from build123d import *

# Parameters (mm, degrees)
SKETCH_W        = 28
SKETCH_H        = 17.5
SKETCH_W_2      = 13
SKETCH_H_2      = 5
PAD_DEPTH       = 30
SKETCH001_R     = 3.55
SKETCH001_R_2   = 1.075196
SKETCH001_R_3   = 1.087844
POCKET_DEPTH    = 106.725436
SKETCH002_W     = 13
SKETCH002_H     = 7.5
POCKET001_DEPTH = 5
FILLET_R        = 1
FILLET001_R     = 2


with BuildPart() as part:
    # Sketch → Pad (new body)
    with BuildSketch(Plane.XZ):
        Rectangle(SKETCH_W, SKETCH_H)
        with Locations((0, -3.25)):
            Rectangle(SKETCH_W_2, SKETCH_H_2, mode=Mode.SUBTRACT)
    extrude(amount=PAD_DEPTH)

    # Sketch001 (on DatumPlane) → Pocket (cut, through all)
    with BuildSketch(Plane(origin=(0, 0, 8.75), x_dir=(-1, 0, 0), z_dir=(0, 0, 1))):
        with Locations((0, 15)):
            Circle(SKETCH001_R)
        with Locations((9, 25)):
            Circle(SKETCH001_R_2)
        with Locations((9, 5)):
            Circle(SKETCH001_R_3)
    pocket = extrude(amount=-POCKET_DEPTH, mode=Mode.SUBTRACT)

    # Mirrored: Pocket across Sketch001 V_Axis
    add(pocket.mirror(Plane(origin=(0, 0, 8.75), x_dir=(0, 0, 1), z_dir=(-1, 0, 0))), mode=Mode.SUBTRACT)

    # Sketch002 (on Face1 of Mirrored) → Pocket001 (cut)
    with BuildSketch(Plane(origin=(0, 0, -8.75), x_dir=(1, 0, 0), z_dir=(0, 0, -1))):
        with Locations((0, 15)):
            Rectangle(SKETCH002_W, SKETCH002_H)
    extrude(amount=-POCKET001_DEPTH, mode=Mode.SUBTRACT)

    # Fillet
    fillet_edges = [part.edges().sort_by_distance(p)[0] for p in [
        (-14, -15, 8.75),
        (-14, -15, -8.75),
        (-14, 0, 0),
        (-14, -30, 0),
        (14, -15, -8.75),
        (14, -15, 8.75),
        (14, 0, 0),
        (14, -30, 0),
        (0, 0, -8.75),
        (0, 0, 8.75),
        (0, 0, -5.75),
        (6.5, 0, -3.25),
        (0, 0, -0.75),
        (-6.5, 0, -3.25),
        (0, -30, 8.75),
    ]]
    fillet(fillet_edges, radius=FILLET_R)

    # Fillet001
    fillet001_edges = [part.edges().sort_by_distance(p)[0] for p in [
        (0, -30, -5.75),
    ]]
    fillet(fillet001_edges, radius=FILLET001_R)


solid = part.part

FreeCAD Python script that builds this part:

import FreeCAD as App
import Part
import Sketcher


def edges_at(feature, points):
    """Names of the edges that pass closest to the given points."""
    edges = feature.Shape.Edges
    near = lambda p: min(range(len(edges)), key=lambda i: edges[i].distToShape(Part.Vertex(*p))[0])
    return sorted({f"Edge{near(p) + 1}" for p in points})

doc = App.newDocument("Part")
body = doc.addObject("PartDesign::Body", "Body")

# Sketch on XZ plane
sketch1 = body.newObject("Sketcher::SketchObject", "Sketch")
sketch1.AttachmentSupport = (doc.getObject("XZ_Plane"), [""])
sketch1.MapMode = "FlatFace"
sketch1.addGeometry([
    Part.LineSegment(App.Vector(-14, 9, 0), App.Vector(-14, -9, 0)),  # 0
    Part.LineSegment(App.Vector(-14, -9, 0), App.Vector(14, -9, 0)),  # 1
    Part.LineSegment(App.Vector(14, -9, 0), App.Vector(14, 9, 0)),  # 2
    Part.LineSegment(App.Vector(14, 9, 0), App.Vector(-14, 9, 0)),  # 3
    Part.LineSegment(App.Vector(6, -6, 0), App.Vector(-6, -6, 0)),  # 4
    Part.LineSegment(App.Vector(-6, -6, 0), App.Vector(-6, -1, 0)),  # 5
    Part.LineSegment(App.Vector(-6, -1, 0), App.Vector(6, -1, 0)),  # 6
    Part.LineSegment(App.Vector(6, -1, 0), App.Vector(6, -6, 0)),  # 7
], False)
sketch1.addConstraint([
    Sketcher.Constraint("Coincident", 0, 2, 1, 1),
    Sketcher.Constraint("Coincident", 1, 2, 2, 1),
    Sketcher.Constraint("Coincident", 2, 2, 3, 1),
    Sketcher.Constraint("Coincident", 3, 2, 0, 1),
    Sketcher.Constraint("Coincident", 4, 2, 5, 1),
    Sketcher.Constraint("Coincident", 5, 2, 6, 1),
    Sketcher.Constraint("Coincident", 6, 2, 7, 1),
    Sketcher.Constraint("Coincident", 7, 2, 4, 1),
    Sketcher.Constraint("Vertical", 0),
    Sketcher.Constraint("Horizontal", 1),
    Sketcher.Constraint("Vertical", 2),
    Sketcher.Constraint("Horizontal", 3),
    Sketcher.Constraint("Horizontal", 4),
    Sketcher.Constraint("Vertical", 5),
    Sketcher.Constraint("Horizontal", 6),
    Sketcher.Constraint("Vertical", 7),
    Sketcher.Constraint("Symmetric", 0, 2, 2, 2, -1, 1),
    Sketcher.Constraint("DistanceX", 1, 1, 1, 2, 28.0),
    Sketcher.Constraint("DistanceX", 4, 2, 4, 1, 13.0),
    Sketcher.Constraint("DistanceY", 5, 1, 5, 2, 5.0),
    Sketcher.Constraint("DistanceY", 0, 2, 0, 1, 17.5),
    Sketcher.Constraint("DistanceY", 0, 2, 4, 2, 3.0),
    Sketcher.Constraint("DistanceX", 4, 2, -1, 1, 6.5),
])
pad1 = body.newObject("PartDesign::Pad", "Pad")
pad1.Profile = sketch1
pad1.Length = 30

# Sketch on XY plane
sketch2 = body.newObject("Sketcher::SketchObject", "Sketch001")
sketch2.AttachmentSupport = (doc.getObject("XY_Plane"), [""])
sketch2.MapMode = "FlatFace"
sketch2.AttachmentOffset = App.Placement(App.Vector(0, 0, 8.75), App.Rotation())
sketch2.addGeometry([
    Part.Circle(App.Vector(0, -15, 0), App.Vector(0, 0, 1), 3.5),
    Part.Circle(App.Vector(-9, -25, 0), App.Vector(0, 0, 1), 1.1),
    Part.Circle(App.Vector(-9, -5, 0), App.Vector(0, 0, 1), 1.1),
], False)
sketch2.addConstraint([
    Sketcher.Constraint("PointOnObject", 0, 3, -2),
    Sketcher.Constraint("Vertical", 1, 3, 2, 3),
    Sketcher.Constraint("Diameter", 0, 7.1),
    Sketcher.Constraint("DistanceY", 0, 3, -1, 1, 15.0),
    Sketcher.Constraint("DistanceX", 1, 3, -1, 1, 9.0),
    Sketcher.Constraint("DistanceY", 1, 3, -1, 1, 25.0),
    Sketcher.Constraint("DistanceY", 2, 3, -1, 1, 5.0),
    Sketcher.Constraint("Diameter", 2, 2.175688),
    Sketcher.Constraint("Diameter", 1, 2.150392),
])
pocket1 = body.newObject("PartDesign::Pocket", "Pocket")
pocket1.Profile = sketch2
pocket1.Type = "ThroughAll"
doc.recompute()

mirrored = body.newObject("PartDesign::Mirrored", "Mirrored")
mirrored.Originals = [pocket1]
mirrored.MirrorPlane = (doc.getObject("YZ_Plane"), [""])
body.Tip = mirrored

# Sketch on XY plane
sketch3 = body.newObject("Sketcher::SketchObject", "Sketch002")
sketch3.AttachmentSupport = (doc.getObject("XY_Plane"), [""])
sketch3.MapMode = "FlatFace"
sketch3.AttachmentOffset = App.Placement(App.Vector(0, 0, -8.75), App.Rotation())
sketch3.addGeometry([
    Part.LineSegment(App.Vector(-6, -19, 0), App.Vector(-6, -11, 0)),
    Part.LineSegment(App.Vector(-6, -11, 0), App.Vector(6, -11, 0)),
    Part.LineSegment(App.Vector(6, -11, 0), App.Vector(6, -19, 0)),
    Part.LineSegment(App.Vector(6, -19, 0), App.Vector(-6, -19, 0)),
], False)
sketch3.addConstraint([
    Sketcher.Constraint("Coincident", 0, 2, 1, 1),
    Sketcher.Constraint("Coincident", 1, 2, 2, 1),
    Sketcher.Constraint("Coincident", 2, 2, 3, 1),
    Sketcher.Constraint("Coincident", 3, 2, 0, 1),
    Sketcher.Constraint("Vertical", 0),
    Sketcher.Constraint("Horizontal", 1),
    Sketcher.Constraint("Vertical", 2),
    Sketcher.Constraint("Horizontal", 3),
    Sketcher.Constraint("DistanceX", 1, 1, 1, 2, 13.0),
    Sketcher.Constraint("DistanceY", 0, 1, 0, 2, 7.5),
    Sketcher.Constraint("DistanceX", 0, 2, -1, 1, 6.5),
    Sketcher.Constraint("DistanceY", 0, 2, -1, 1, 11.25),
])
pocket2 = body.newObject("PartDesign::Pocket", "Pocket001")
pocket2.Profile = sketch3
pocket2.Length = 5
pocket2.Reversed = True
doc.recompute()

fillet = body.newObject("PartDesign::Fillet", "Fillet")
fillet.Base = (pocket2, edges_at(pocket2, [
    (-14, -15, 8.75),
    (-14, -15, -8.75),
    (-14, 0, 0),
    (-14, -30, 0),
    (14, -15, -8.75),
    (14, -15, 8.75),
    (14, 0, 0),
    (14, -30, 0),
    (0, 0, -8.75),
    (0, 0, 8.75),
    (0, 0, -5.75),
    (6.5, 0, -3.25),
    (0, 0, -0.75),
    (-6.5, 0, -3.25),
    (0, -30, 8.75),
]))
fillet.Radius = 1
doc.recompute()

fillet2 = body.newObject("PartDesign::Fillet", "Fillet001")
fillet2.Base = (fillet, edges_at(fillet, [(0, -30, -5.75)]))
fillet2.Radius = 2

doc.recompute()
